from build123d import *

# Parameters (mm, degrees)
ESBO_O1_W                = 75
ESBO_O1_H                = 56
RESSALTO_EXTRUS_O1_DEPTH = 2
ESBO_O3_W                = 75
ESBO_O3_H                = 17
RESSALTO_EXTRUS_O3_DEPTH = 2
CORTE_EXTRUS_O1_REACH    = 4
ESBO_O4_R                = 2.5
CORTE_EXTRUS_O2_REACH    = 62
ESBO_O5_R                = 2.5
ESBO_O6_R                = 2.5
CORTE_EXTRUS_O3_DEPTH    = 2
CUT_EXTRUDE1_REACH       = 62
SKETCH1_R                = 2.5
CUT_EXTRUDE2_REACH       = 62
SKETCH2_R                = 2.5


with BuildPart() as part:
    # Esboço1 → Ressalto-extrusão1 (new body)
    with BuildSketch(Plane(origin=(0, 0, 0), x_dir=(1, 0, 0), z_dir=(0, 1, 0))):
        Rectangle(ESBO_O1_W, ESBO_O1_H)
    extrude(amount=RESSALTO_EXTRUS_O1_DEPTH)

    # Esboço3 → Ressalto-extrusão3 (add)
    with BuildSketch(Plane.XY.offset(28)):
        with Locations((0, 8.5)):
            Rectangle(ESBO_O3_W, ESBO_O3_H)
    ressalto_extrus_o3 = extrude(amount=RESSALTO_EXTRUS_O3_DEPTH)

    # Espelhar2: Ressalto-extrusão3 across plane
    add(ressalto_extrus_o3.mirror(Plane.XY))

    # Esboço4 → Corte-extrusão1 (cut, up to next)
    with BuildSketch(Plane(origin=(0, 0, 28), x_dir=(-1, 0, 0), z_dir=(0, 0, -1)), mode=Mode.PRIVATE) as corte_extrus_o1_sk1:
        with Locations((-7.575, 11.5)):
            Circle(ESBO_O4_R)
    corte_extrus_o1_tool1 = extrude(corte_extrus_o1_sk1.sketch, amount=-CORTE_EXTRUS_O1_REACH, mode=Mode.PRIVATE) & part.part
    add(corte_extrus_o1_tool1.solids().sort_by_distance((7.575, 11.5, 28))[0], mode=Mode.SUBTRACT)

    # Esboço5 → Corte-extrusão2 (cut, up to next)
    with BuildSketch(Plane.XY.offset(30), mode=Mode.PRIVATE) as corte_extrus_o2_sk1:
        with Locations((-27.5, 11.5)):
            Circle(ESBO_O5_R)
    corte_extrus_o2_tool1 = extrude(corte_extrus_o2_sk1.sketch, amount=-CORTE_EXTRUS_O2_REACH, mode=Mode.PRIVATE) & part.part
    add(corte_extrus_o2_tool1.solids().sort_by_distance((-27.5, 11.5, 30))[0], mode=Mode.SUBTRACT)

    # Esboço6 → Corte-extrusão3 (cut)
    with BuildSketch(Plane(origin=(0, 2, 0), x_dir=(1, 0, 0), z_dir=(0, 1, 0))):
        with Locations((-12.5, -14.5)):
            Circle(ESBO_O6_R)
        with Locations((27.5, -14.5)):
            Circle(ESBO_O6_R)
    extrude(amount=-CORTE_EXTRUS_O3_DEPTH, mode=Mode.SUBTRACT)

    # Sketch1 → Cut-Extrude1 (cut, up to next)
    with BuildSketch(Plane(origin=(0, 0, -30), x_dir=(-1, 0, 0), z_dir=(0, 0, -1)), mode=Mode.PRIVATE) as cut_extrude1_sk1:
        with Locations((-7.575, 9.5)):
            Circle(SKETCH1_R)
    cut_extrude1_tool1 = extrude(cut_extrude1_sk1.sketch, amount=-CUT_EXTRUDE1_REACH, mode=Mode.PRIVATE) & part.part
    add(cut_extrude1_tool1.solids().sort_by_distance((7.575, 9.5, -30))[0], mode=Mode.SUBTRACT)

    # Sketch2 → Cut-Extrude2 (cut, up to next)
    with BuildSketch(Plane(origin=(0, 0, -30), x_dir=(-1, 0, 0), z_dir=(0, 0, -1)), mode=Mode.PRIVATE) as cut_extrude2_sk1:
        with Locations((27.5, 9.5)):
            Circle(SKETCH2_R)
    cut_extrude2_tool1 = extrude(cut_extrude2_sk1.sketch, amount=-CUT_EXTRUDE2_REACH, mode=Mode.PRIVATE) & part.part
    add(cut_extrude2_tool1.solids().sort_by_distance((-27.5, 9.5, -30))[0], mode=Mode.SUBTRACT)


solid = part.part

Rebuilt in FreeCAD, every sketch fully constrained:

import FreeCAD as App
import Part
import Sketcher

V = App.Vector
Q = App.Units.Quantity


def add_polygon(sketch, points):
    """Adds a closed chain of lines whose ends are joined by coincident constraints."""
    first, n = sketch.GeometryCount, len(points)
    for a, b in zip(points, points[1:] + points[:1]):
        sketch.addGeometry(Part.LineSegment(App.Vector(*a, 0), App.Vector(*b, 0)), False)
    for i in range(n):
        sketch.addConstraint(Sketcher.Constraint("Coincident", first + i, 2, first + (i + 1) % n, 1))

doc = App.newDocument("Part")
body = doc.addObject("PartDesign::Body", "Body")

sketch1 = body.newObject("Sketcher::SketchObject", "Sketch")
sketch1.AttachmentSupport = (doc.getObject("XZ_Plane"), [""])
sketch1.MapMode = "FlatFace"
add_polygon(sketch1, [(-38, -28), (-38, 28), (38, 28), (38, -28)])
sketch1.addConstraint(Sketcher.Constraint("Vertical", 0))
sketch1.addConstraint(Sketcher.Constraint("Horizontal", 1))
sketch1.addConstraint(Sketcher.Constraint("Vertical", 2))
sketch1.addConstraint(Sketcher.Constraint("Horizontal", 3))
sketch1.addConstraint(Sketcher.Constraint("Symmetric", 0, 2, 2, 2, -1, 1))
sketch1.addConstraint(Sketcher.Constraint("DistanceX", 1, 1, 1, 2, Q("75 mm")))
sketch1.addConstraint(Sketcher.Constraint("DistanceY", 0, 1, 0, 2, Q("56 mm")))
pad1 = body.newObject("PartDesign::Pad", "Pad")
pad1.Profile = sketch1
pad1.Length = 2
pad1.Reversed = True

sketch2 = body.newObject("Sketcher::SketchObject", "Sketch001")
sketch2.AttachmentSupport = (doc.getObject("XY_Plane"), [""])
sketch2.MapMode = "FlatFace"
sketch2.AttachmentOffset = App.Placement(V(0, 0, 28), App.Rotation())
add_polygon(sketch2, [(-38, 17), (-38, 0), (38, 0), (38, 17)])
sketch2.addConstraint(Sketcher.Constraint("Vertical", 0))
sketch2.addConstraint(Sketcher.Constraint("Horizontal", 1))
sketch2.addConstraint(Sketcher.Constraint("Vertical", 2))
sketch2.addConstraint(Sketcher.Constraint("Horizontal", 3))
sketch2.addConstraint(Sketcher.Constraint("Symmetric", 0, 2, 1, 2, -1, 1))
sketch2.addConstraint(Sketcher.Constraint("DistanceX", 1, 1, 1, 2, Q("75 mm")))
sketch2.addConstraint(Sketcher.Constraint("DistanceY", 0, 2, 0, 1, Q("17 mm")))
pad2 = body.newObject("PartDesign::Pad", "Pad001")
pad2.Profile = sketch2
pad2.Length = 2
doc.recompute()

mirrored = body.newObject("PartDesign::Mirrored", "Mirrored")
mirrored.Originals = [pad2]
mirrored.MirrorPlane = (doc.getObject("XY_Plane"), [""])
body.Tip = mirrored

sketch3 = body.newObject("Sketcher::SketchObject", "Sketch002")
sketch3.AttachmentSupport = (doc.getObject("XY_Plane"), [""])
sketch3.MapMode = "FlatFace"
sketch3.AttachmentOffset = App.Placement(V(0, 0, 28), App.Rotation())
sketch3.addGeometry(Part.Circle(V(7.6, 11.5, 0), V(0, 0, 1), 2.5), False)
sketch3.addConstraint(Sketcher.Constraint("Diameter", 0, Q("5 mm")))
sketch3.addConstraint(Sketcher.Constraint("DistanceY", -1, 1, 0, 3, Q("11.5 mm")))
sketch3.addConstraint(Sketcher.Constraint("DistanceX", -1, 1, 0, 3, Q("7.575 mm")))
pocket1 = body.newObject("PartDesign::Pocket", "Pocket")
pocket1.Profile = sketch3
pocket1.Type = "UpToFirst"
pocket1.Reversed = True

sketch4 = body.newObject("Sketcher::SketchObject", "Sketch003")
sketch4.AttachmentSupport = (doc.getObject("XY_Plane"), [""])
sketch4.MapMode = "FlatFace"
sketch4.AttachmentOffset = App.Placement(V(0, 0, 30), App.Rotation())
sketch4.addGeometry(Part.Circle(V(-27.5, 11.5, 0), V(0, 0, 1), 2.5), False)
sketch4.addConstraint(Sketcher.Constraint("Diameter", 0, Q("5 mm")))
sketch4.addConstraint(Sketcher.Constraint("DistanceX", 0, 3, -1, 1, Q("27.5 mm")))
sketch4.addConstraint(Sketcher.Constraint("DistanceY", -1, 1, 0, 3, Q("11.5 mm")))
pocket2 = body.newObject("PartDesign::Pocket", "Pocket001")
pocket2.Profile = sketch4
pocket2.Type = "UpToFirst"

sketch5 = body.newObject("Sketcher::SketchObject", "Sketch004")
sketch5.AttachmentSupport = (doc.getObject("XZ_Plane"), [""])
sketch5.MapMode = "FlatFace"
sketch5.AttachmentOffset = App.Placement(V(0, 0, -2), App.Rotation())
sketch5.addGeometry(Part.Circle(V(-12.5, 14.5, 0), V(0, 0, 1), 2.5), False)
sketch5.addGeometry(Part.Circle(V(27.5, 14.5, 0), V(0, 0, 1), 2.5), False)
sketch5.addConstraint(Sketcher.Constraint("Equal", 0, 1))
sketch5.addConstraint(Sketcher.Constraint("Horizontal", 0, 3, 1, 3))
sketch5.addConstraint(Sketcher.Constraint("Diameter", 0, Q("5 mm")))
sketch5.addConstraint(Sketcher.Constraint("DistanceX", 0, 3, 1, 3, Q("40 mm")))
sketch5.addConstraint(Sketcher.Constraint("DistanceX", 0, 3, -1, 1, Q("12.5 mm")))
sketch5.addConstraint(Sketcher.Constraint("DistanceY", -1, 1, 0, 3, Q("14.5 mm")))
pocket3 = body.newObject("PartDesign::Pocket", "Pocket002")
pocket3.Profile = sketch5
pocket3.Length = 2
pocket3.Reversed = True

sketch6 = body.newObject("Sketcher::SketchObject", "Sketch005")
sketch6.AttachmentSupport = (doc.getObject("XY_Plane"), [""])
sketch6.MapMode = "FlatFace"
sketch6.AttachmentOffset = App.Placement(V(0, 0, -30), App.Rotation())
sketch6.addGeometry(Part.Circle(V(7.6, 9.5, 0), V(0, 0, 1), 2.5), False)
sketch6.addConstraint(Sketcher.Constraint("Diameter", 0, Q("5 mm")))
sketch6.addConstraint(Sketcher.Constraint("DistanceY", -1, 1, 0, 3, Q("9.5 mm")))
sketch6.addConstraint(Sketcher.Constraint("DistanceX", -1, 1, 0, 3, Q("7.575 mm")))
pocket4 = body.newObject("PartDesign::Pocket", "Pocket003")
pocket4.Profile = sketch6
pocket4.Type = "UpToFirst"
pocket4.Reversed = True

sketch7 = body.newObject("Sketcher::SketchObject", "Sketch006")
sketch7.AttachmentSupport = (doc.getObject("XY_Plane"), [""])
sketch7.MapMode = "FlatFace"
sketch7.AttachmentOffset = App.Placement(V(0, 0, -30), App.Rotation())
sketch7.addGeometry(Part.Circle(V(-27.5, 9.5, 0), V(0, 0, 1), 2.5), False)
sketch7.addConstraint(Sketcher.Constraint("Diameter", 0, Q("5 mm")))
sketch7.addConstraint(Sketcher.Constraint("DistanceX", 0, 3, -1, 1, Q("27.5 mm")))
sketch7.addConstraint(Sketcher.Constraint("DistanceY", -1, 1, 0, 3, Q("9.5 mm")))
pocket5 = body.newObject("PartDesign::Pocket", "Pocket004")
pocket5.Profile = sketch7
pocket5.Type = "UpToFirst"
pocket5.Reversed = True

doc.recompute()
